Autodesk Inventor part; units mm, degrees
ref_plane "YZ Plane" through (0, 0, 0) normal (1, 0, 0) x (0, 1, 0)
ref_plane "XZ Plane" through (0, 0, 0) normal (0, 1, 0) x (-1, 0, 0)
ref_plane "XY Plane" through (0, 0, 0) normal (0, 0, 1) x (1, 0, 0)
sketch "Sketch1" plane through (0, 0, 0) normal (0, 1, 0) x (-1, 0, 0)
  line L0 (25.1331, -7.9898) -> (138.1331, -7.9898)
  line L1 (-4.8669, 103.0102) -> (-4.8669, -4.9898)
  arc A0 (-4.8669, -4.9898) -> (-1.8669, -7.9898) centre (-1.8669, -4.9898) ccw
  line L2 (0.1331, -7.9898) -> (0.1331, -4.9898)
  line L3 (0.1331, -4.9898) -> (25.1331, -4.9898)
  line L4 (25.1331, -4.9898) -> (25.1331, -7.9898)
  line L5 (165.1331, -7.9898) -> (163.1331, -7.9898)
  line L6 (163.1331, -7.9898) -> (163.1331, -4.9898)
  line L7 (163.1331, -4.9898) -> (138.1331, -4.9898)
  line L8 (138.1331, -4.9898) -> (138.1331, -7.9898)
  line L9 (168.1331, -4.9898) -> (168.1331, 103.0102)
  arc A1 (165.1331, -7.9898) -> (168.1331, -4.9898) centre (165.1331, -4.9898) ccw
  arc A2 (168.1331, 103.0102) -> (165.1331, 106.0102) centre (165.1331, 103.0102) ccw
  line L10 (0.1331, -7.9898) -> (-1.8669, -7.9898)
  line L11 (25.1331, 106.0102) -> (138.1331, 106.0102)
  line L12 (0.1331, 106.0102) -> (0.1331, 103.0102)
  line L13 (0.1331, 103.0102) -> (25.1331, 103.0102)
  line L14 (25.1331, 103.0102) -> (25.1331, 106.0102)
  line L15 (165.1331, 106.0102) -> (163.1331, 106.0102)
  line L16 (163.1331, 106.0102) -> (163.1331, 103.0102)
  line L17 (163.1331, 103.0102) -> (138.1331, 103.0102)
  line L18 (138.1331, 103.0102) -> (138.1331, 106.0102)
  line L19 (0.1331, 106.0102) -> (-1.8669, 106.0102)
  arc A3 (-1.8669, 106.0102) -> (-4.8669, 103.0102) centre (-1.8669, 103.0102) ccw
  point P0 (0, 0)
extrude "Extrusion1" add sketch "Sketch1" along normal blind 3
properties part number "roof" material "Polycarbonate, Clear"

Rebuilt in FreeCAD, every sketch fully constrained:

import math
import FreeCAD as App
import Part
import Sketcher
from FreeCAD import Vector
Q = App.Units.Quantity

doc = App.newDocument("Part")
params = doc.addObject("Spreadsheet::Sheet", "Params")
for row, (alias, value) in enumerate([
    ("sketch1_radius", "3 mm"),
    ("sketch1_width", "113 mm"),
    ("sketch1_width2", "25 mm"),
    ("sketch1_width3", "2 mm"),
    ("sketch1_height", "108 mm"),
    ("pad1_length", "3 mm"),
], start=1):
    params.set(f"A{row}", alias)
    params.set(f"B{row}", "=" + value)
    params.setAlias(f"B{row}", alias)

body = doc.addObject("PartDesign::Body", "Body")

# Sketch on XZ plane
sketch1 = body.newObject("Sketcher::SketchObject", "Sketch")
sketch1.AttachmentSupport = (doc.getObject("XZ_Plane"), [""])
sketch1.MapMode = "FlatFace"
sketch1.addGeometry(Part.LineSegment(Vector(-25.1, -5, 0), Vector(-25.1, -8, 0)), False)
sketch1.addGeometry(Part.LineSegment(Vector(-25.1, -8, 0), Vector(-138.1, -8, 0)), False)
sketch1.addGeometry(Part.LineSegment(Vector(-138.1, -8, 0), Vector(-138.1, -5, 0)), False)
sketch1.addGeometry(Part.LineSegment(Vector(-138.1, -5, 0), Vector(-163.1, -5, 0)), False)
sketch1.addGeometry(Part.LineSegment(Vector(-163.1, -5, 0), Vector(-163.1, -8, 0)), False)
sketch1.addGeometry(Part.LineSegment(Vector(-163.1, -8, 0), Vector(-165.1, -8, 0)), False)
sketch1.addGeometry(Part.ArcOfCircle(Part.Circle(Vector(-165.1, -5, 0), Vector(0, 0, 1), 3), math.radians(180), math.radians(270)), False)
sketch1.addGeometry(Part.LineSegment(Vector(-168.1, -5, 0), Vector(-168.1, 103, 0)), False)
sketch1.addGeometry(Part.ArcOfCircle(Part.Circle(Vector(-165.1, 103, 0), Vector(0, 0, 1), 3), math.radians(90), math.radians(180)), False)
sketch1.addGeometry(Part.LineSegment(Vector(-165.1, 106, 0), Vector(-163.1, 106, 0)), False)
sketch1.addGeometry(Part.LineSegment(Vector(-163.1, 106, 0), Vector(-163.1, 103, 0)), False)
sketch1.addGeometry(Part.LineSegment(Vector(-163.1, 103, 0), Vector(-138.1, 103, 0)), False)
sketch1.addGeometry(Part.LineSegment(Vector(-138.1, 103, 0), Vector(-138.1, 106, 0)), False)
sketch1.addGeometry(Part.LineSegment(Vector(-138.1, 106, 0), Vector(-25.1, 106, 0)), False)
sketch1.addGeometry(Part.LineSegment(Vector(-25.1, 106, 0), Vector(-25.1, 103, 0)), False)
sketch1.addGeometry(Part.LineSegment(Vector(-25.1, 103, 0), Vector(-0.1, 103, 0)), False)
sketch1.addGeometry(Part.LineSegment(Vector(-0.1, 103, 0), Vector(-0.1, 106, 0)), False)
sketch1.addGeometry(Part.LineSegment(Vector(-0.1, 106, 0), Vector(1.9, 106, 0)), False)
sketch1.addGeometry(Part.ArcOfCircle(Part.Circle(Vector(1.9, 103, 0), Vector(0, 0, 1), 3), math.radians(0), math.radians(90)), False)
sketch1.addGeometry(Part.LineSegment(Vector(4.9, 103, 0), Vector(4.9, -5, 0)), False)
sketch1.addGeometry(Part.ArcOfCircle(Part.Circle(Vector(1.9, -5, 0), Vector(0, 0, 1), 3), math.radians(-90), math.radians(0)), False)
sketch1.addGeometry(Part.LineSegment(Vector(1.9, -8, 0), Vector(-0.1, -8, 0)), False)
sketch1.addGeometry(Part.LineSegment(Vector(-0.1, -8, 0), Vector(-0.1, -5, 0)), False)
sketch1.addGeometry(Part.LineSegment(Vector(-0.1, -5, 0), Vector(-25.1, -5, 0)), False)
sketch1.addConstraint(Sketcher.Constraint("Coincident", 0, 2, 1, 1))
sketch1.addConstraint(Sketcher.Constraint("Coincident", 1, 2, 2, 1))
sketch1.addConstraint(Sketcher.Constraint("Coincident", 2, 2, 3, 1))
sketch1.addConstraint(Sketcher.Constraint("Coincident", 3, 2, 4, 1))
sketch1.addConstraint(Sketcher.Constraint("Coincident", 4, 2, 5, 1))
sketch1.addConstraint(Sketcher.Constraint("Tangent", 5, 2, 6, 2))
sketch1.addConstraint(Sketcher.Constraint("Tangent", 6, 1, 7, 1))
sketch1.addConstraint(Sketcher.Constraint("Tangent", 7, 2, 8, 2))
sketch1.addConstraint(Sketcher.Constraint("Tangent", 8, 1, 9, 1))
sketch1.addConstraint(Sketcher.Constraint("Coincident", 9, 2, 10, 1))
sketch1.addConstraint(Sketcher.Constraint("Coincident", 10, 2, 11, 1))
sketch1.addConstraint(Sketcher.Constraint("Coincident", 11, 2, 12, 1))
sketch1.addConstraint(Sketcher.Constraint("Coincident", 12, 2, 13, 1))
sketch1.addConstraint(Sketcher.Constraint("Coincident", 13, 2, 14, 1))
sketch1.addConstraint(Sketcher.Constraint("Coincident", 14, 2, 15, 1))
sketch1.addConstraint(Sketcher.Constraint("Coincident", 15, 2, 16, 1))
sketch1.addConstraint(Sketcher.Constraint("Coincident", 16, 2, 17, 1))
sketch1.addConstraint(Sketcher.Constraint("Tangent", 17, 2, 18, 2))
sketch1.addConstraint(Sketcher.Constraint("Tangent", 18, 1, 19, 1))
sketch1.addConstraint(Sketcher.Constraint("Tangent", 19, 2, 20, 2))
sketch1.addConstraint(Sketcher.Constraint("Tangent", 20, 1, 21, 1))
sketch1.addConstraint(Sketcher.Constraint("Coincident", 21, 2, 22, 1))
sketch1.addConstraint(Sketcher.Constraint("Coincident", 22, 2, 23, 1))
sketch1.addConstraint(Sketcher.Constraint("Coincident", 23, 2, 0, 1))
sketch1.addConstraint(Sketcher.Constraint("Vertical", 0))
sketch1.addConstraint(Sketcher.Constraint("Horizontal", 1))
sketch1.addConstraint(Sketcher.Constraint("Vertical", 2))
sketch1.addConstraint(Sketcher.Constraint("Horizontal", 3))
sketch1.addConstraint(Sketcher.Constraint("Vertical", 4))
sketch1.addConstraint(Sketcher.Constraint("Horizontal", 5))
sketch1.addConstraint(Sketcher.Constraint("Vertical", 7))
sketch1.addConstraint(Sketcher.Constraint("Horizontal", 9))
sketch1.addConstraint(Sketcher.Constraint("Vertical", 10))
sketch1.addConstraint(Sketcher.Constraint("Horizontal", 11))
sketch1.addConstraint(Sketcher.Constraint("Vertical", 12))
sketch1.addConstraint(Sketcher.Constraint("Horizontal", 13))
sketch1.addConstraint(Sketcher.Constraint("Vertical", 14))
sketch1.addConstraint(Sketcher.Constraint("Horizontal", 15))
sketch1.addConstraint(Sketcher.Constraint("Vertical", 16))
sketch1.addConstraint(Sketcher.Constraint("Horizontal", 17))
sketch1.addConstraint(Sketcher.Constraint("Vertical", 19))
sketch1.addConstraint(Sketcher.Constraint("Horizontal", 21))
sketch1.addConstraint(Sketcher.Constraint("Vertical", 22))
sketch1.addConstraint(Sketcher.Constraint("Horizontal", 23))
sketch1.addConstraint(Sketcher.Constraint("Equal", 6, 8))
sketch1.addConstraint(Sketcher.Constraint("Equal", 8, 18))
sketch1.addConstraint(Sketcher.Constraint("Equal", 18, 20))
sketch1.addConstraint(Sketcher.Constraint("Horizontal", 8, 3, 18, 3))
sketch1.addConstraint(Sketcher.Constraint("Horizontal", 6, 3, 20, 3))
sketch1.addConstraint(Sketcher.Constraint("Horizontal", 20, 3, 2, 2))
sketch1.addConstraint(Sketcher.Constraint("Horizontal", 1, 2, 4, 2))
sketch1.addConstraint(Sketcher.Constraint("Horizontal", 7, 2, 10, 2))
sketch1.addConstraint(Sketcher.Constraint("Horizontal", 9, 2, 12, 2))
sketch1.addConstraint(Sketcher.Constraint("Horizontal", 11, 2, 14, 2))
sketch1.addConstraint(Sketcher.Constraint("Horizontal", 19, 2, 22, 2))
sketch1.addConstraint(Sketcher.Constraint("Vertical", 4, 2, 9, 2))
sketch1.addConstraint(Sketcher.Constraint("Vertical", 2, 2, 11, 2))
sketch1.addConstraint(Sketcher.Constraint("Vertical", 0, 2, 13, 2))
sketch1.addConstraint(Sketcher.Constraint("Vertical", 16, 2, 21, 2))
sketch1.addConstraint(Sketcher.Constraint("Equal", 11, 15))
sketch1.addConstraint(Sketcher.Constraint("Equal", 9, 17))
sketch1.addConstraint(Sketcher.Constraint("Radius", 6, Q("3 mm")))
sketch1.addConstraint(Sketcher.Constraint("DistanceX", 1, 2, 1, 1, Q("113 mm")))
sketch1.addConstraint(Sketcher.Constraint("DistanceX", 3, 2, 3, 1, Q("25 mm")))
sketch1.addConstraint(Sketcher.Constraint("DistanceX", 5, 2, 5, 1, Q("2 mm")))
sketch1.addConstraint(Sketcher.Constraint("DistanceY", 7, 1, 7, 2, Q("108 mm")))
sketch1.addConstraint(Sketcher.Constraint("DistanceX", 6, 3, -1, 1, Q("165.133 mm")))
sketch1.addConstraint(Sketcher.Constraint("DistanceY", 6, 3, -1, 1, Q("4.9898 mm")))
sketch1.setExpression("Constraints[61]", "Params.sketch1_radius")
sketch1.setExpression("Constraints[62]", "Params.sketch1_width")
sketch1.setExpression("Constraints[63]", "Params.sketch1_width2")
sketch1.setExpression("Constraints[64]", "Params.sketch1_width3")
sketch1.setExpression("Constraints[65]", "Params.sketch1_height")
pad1 = body.newObject("PartDesign::Pad", "Pad")
pad1.Profile = sketch1
pad1.setExpression("Length", "Params.pad1_length")
pad1.Reversed = True

doc.recompute()
